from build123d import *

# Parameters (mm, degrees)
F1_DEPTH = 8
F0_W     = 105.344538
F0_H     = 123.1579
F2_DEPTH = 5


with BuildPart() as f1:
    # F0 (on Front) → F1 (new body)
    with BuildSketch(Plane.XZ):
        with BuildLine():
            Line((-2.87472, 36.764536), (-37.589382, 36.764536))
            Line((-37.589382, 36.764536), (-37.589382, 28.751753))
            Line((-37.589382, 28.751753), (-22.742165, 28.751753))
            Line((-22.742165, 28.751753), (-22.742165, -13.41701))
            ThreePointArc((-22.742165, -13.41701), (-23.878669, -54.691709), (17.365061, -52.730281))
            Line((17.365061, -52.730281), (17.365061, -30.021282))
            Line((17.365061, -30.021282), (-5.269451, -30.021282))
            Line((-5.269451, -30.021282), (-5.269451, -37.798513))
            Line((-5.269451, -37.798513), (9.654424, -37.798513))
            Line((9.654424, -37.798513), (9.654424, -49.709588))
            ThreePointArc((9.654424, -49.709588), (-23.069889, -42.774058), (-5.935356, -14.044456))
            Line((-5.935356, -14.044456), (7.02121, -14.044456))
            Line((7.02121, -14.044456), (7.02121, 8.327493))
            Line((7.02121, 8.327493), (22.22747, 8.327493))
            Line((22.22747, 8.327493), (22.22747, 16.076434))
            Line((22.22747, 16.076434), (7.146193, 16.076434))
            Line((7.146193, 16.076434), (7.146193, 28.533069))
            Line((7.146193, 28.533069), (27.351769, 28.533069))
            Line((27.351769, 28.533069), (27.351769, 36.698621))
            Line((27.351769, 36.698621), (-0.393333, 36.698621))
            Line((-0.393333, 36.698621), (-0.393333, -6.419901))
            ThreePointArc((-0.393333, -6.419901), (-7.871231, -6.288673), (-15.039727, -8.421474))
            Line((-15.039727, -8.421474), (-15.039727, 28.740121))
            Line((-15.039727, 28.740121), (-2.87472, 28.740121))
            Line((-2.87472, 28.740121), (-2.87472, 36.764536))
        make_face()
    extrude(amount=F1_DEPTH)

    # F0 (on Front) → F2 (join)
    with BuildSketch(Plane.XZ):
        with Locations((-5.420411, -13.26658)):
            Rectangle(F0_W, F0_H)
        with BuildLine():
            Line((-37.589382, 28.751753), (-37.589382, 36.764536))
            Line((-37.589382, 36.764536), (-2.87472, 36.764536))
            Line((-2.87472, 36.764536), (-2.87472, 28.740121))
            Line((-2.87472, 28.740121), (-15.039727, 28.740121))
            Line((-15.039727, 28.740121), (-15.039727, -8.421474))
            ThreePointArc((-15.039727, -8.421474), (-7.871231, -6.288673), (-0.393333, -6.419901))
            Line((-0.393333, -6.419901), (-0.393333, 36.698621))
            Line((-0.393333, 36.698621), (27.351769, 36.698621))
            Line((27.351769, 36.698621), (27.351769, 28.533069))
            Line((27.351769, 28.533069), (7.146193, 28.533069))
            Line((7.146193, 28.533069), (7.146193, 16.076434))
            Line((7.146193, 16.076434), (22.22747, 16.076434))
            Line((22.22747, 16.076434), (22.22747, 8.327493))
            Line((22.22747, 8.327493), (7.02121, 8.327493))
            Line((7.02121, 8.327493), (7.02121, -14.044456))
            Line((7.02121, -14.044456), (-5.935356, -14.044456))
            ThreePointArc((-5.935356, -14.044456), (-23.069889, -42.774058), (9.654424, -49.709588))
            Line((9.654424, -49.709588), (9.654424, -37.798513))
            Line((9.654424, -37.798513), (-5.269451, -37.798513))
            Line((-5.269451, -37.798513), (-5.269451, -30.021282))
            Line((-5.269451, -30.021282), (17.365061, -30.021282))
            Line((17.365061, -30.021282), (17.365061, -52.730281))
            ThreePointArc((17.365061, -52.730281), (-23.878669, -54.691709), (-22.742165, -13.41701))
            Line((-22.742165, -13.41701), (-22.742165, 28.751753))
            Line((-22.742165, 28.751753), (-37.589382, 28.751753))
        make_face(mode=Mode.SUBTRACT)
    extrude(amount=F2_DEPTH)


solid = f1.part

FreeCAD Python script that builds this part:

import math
import FreeCAD as App
import Part
import Sketcher
Q = App.Units.Quantity

doc = App.newDocument("Part")
body = doc.addObject("PartDesign::Body", "Body")

sketch1 = doc.addObject("Sketcher::SketchObject", "Sketch")
body.addObject(sketch1)
sketch1.AttachmentSupport = (doc.XZ_Plane, [""])
sketch1.MapMode = "FlatFace"
sketch1.addGeometry([
    Part.LineSegment(App.Vector(-3, 37, 0), App.Vector(-38, 37, 0)),
    Part.LineSegment(App.Vector(-38, 37, 0), App.Vector(-38, 29, 0)),
    Part.LineSegment(App.Vector(-38, 29, 0), App.Vector(-23, 29, 0)),
    Part.LineSegment(App.Vector(-23, 29, 0), App.Vector(-23, -13, 0)),
    Part.ArcOfCircle(Part.Circle(App.Vector(-4, -35, 0), App.Vector(0, 0, 1), 28), math.radians(131), math.radians(320)),
    Part.LineSegment(App.Vector(17, -53, 0), App.Vector(17, -30, 0)),
    Part.LineSegment(App.Vector(17, -30, 0), App.Vector(-5, -30, 0)),
    Part.LineSegment(App.Vector(-5, -30, 0), App.Vector(-5, -38, 0)),
    Part.LineSegment(App.Vector(-5, -38, 0), App.Vector(10, -38, 0)),
    Part.LineSegment(App.Vector(10, -38, 0), App.Vector(10, -50, 0)),
    Part.ArcOfCircle(Part.Circle(App.Vector(-4, -35, 0), App.Vector(0, 0, 1), 21), math.radians(95), math.radians(312)),
    Part.LineSegment(App.Vector(-6, -14, 0), App.Vector(7, -14, 0)),
    Part.LineSegment(App.Vector(7, -14, 0), App.Vector(7, 8, 0)),
    Part.LineSegment(App.Vector(7, 8, 0), App.Vector(22, 8, 0)),
    Part.LineSegment(App.Vector(22, 8, 0), App.Vector(22, 16, 0)),
    Part.LineSegment(App.Vector(22, 16, 0), App.Vector(7, 16, 0)),
    Part.LineSegment(App.Vector(7, 16, 0), App.Vector(7, 29, 0)),
    Part.LineSegment(App.Vector(7, 29, 0), App.Vector(27, 29, 0)),
    Part.LineSegment(App.Vector(27, 29, 0), App.Vector(27, 37, 0)),
    Part.LineSegment(App.Vector(27, 37, 0), App.Vector(0, 37, 0)),
    Part.LineSegment(App.Vector(0, 37, 0), App.Vector(0, -6, 0)),
    Part.ArcOfCircle(Part.Circle(App.Vector(-5, -31, 0), App.Vector(0, 0, 1), 24), math.radians(80), math.radians(115)),
    Part.LineSegment(App.Vector(-15, -8, 0), App.Vector(-15, 29, 0)),
    Part.LineSegment(App.Vector(-15, 29, 0), App.Vector(-3, 29, 0)),
    Part.LineSegment(App.Vector(-3, 29, 0), App.Vector(-3, 37, 0)),
], False)
sketch1.addConstraint([
    Sketcher.Constraint("Coincident", 0, 2, 1, 1),
    Sketcher.Constraint("Coincident", 1, 2, 2, 1),
    Sketcher.Constraint("Coincident", 2, 2, 3, 1),
    Sketcher.Constraint("Coincident", 3, 2, 4, 1),
    Sketcher.Constraint("Coincident", 4, 2, 5, 1),
    Sketcher.Constraint("Coincident", 5, 2, 6, 1),
    Sketcher.Constraint("Coincident", 6, 2, 7, 1),
    Sketcher.Constraint("Coincident", 7, 2, 8, 1),
    Sketcher.Constraint("Coincident", 8, 2, 9, 1),
    Sketcher.Constraint("Coincident", 9, 2, 10, 2),
    Sketcher.Constraint("Coincident", 10, 1, 11, 1),
    Sketcher.Constraint("Coincident", 11, 2, 12, 1),
    Sketcher.Constraint("Coincident", 12, 2, 13, 1),
    Sketcher.Constraint("Coincident", 13, 2, 14, 1),
    Sketcher.Constraint("Coincident", 14, 2, 15, 1),
    Sketcher.Constraint("Coincident", 15, 2, 16, 1),
    Sketcher.Constraint("Coincident", 16, 2, 17, 1),
    Sketcher.Constraint("Coincident", 17, 2, 18, 1),
    Sketcher.Constraint("Coincident", 18, 2, 19, 1),
    Sketcher.Constraint("Coincident", 19, 2, 20, 1),
    Sketcher.Constraint("Coincident", 20, 2, 21, 1),
    Sketcher.Constraint("Coincident", 21, 2, 22, 1),
    Sketcher.Constraint("Coincident", 22, 2, 23, 1),
    Sketcher.Constraint("Coincident", 23, 2, 24, 1),
    Sketcher.Constraint("Coincident", 24, 2, 0, 1),
    Sketcher.Constraint("Horizontal", 0),
    Sketcher.Constraint("Vertical", 1),
    Sketcher.Constraint("Horizontal", 2),
    Sketcher.Constraint("Vertical", 3),
    Sketcher.Constraint("Vertical", 5),
    Sketcher.Constraint("Horizontal", 6),
    Sketcher.Constraint("Vertical", 7),
    Sketcher.Constraint("Horizontal", 8),
    Sketcher.Constraint("Vertical", 9),
    Sketcher.Constraint("Horizontal", 11),
    Sketcher.Constraint("Vertical", 12),
    Sketcher.Constraint("Horizontal", 13),
    Sketcher.Constraint("Vertical", 14),
    Sketcher.Constraint("Horizontal", 15),
    Sketcher.Constraint("Vertical", 16),
    Sketcher.Constraint("Horizontal", 17),
    Sketcher.Constraint("Vertical", 18),
    Sketcher.Constraint("Horizontal", 19),
    Sketcher.Constraint("Vertical", 20),
    Sketcher.Constraint("Vertical", 22),
    Sketcher.Constraint("Horizontal", 23),
    Sketcher.Constraint("Vertical", 24),
    Sketcher.Constraint("DistanceY", 5, 1, 5, 2, Q("22.708999 mm")),
    Sketcher.Constraint("Radius", 21, Q("24.478949 mm")),
    Sketcher.Constraint("DistanceX", 19, 2, 19, 1, Q("27.745102 mm")),
    Sketcher.Constraint("Radius", 4, Q("28.160056 mm")),
    Sketcher.Constraint("Radius", 10, Q("20.564225 mm")),
    Sketcher.Constraint("DistanceX", 2, 2, 10, 3, Q("18.515001 mm")),
    Sketcher.Constraint("DistanceX", 13, 1, 13, 2, Q("15.20626 mm")),
    Sketcher.Constraint("DistanceY", 7, 2, 7, 1, Q("7.777231 mm")),
    Sketcher.Constraint("DistanceY", 12, 1, 12, 2, Q("22.371949 mm")),
    Sketcher.Constraint("DistanceY", 14, 1, 14, 2, Q("7.748941 mm")),
    Sketcher.Constraint("DistanceY", 20, 2, -1, 1, Q("6.419901 mm")),
    Sketcher.Constraint("DistanceY", 10, 3, 3, 2, Q("21.120602 mm")),
    Sketcher.Constraint("DistanceX", 6, 2, 21, 3, Q("0.712701 mm")),
    Sketcher.Constraint("DistanceY", 7, 2, 10, 3, Q("3.260901 mm")),
    Sketcher.Constraint("DistanceY", 9, 2, 4, 3, Q("15.1281 mm")),
    Sketcher.Constraint("DistanceX", 14, 2, 17, 2, Q("5.124299 mm")),
    Sketcher.Constraint("DistanceY", 22, 2, 19, 2, Q("7.9585 mm")),
    Sketcher.Constraint("DistanceX", 0, 2, 0, 1, Q("34.714662 mm")),
    Sketcher.Constraint("DistanceX", 2, 1, 2, 2, Q("14.847217 mm")),
    Sketcher.Constraint("DistanceX", 6, 2, 6, 1, Q("22.634512 mm")),
    Sketcher.Constraint("DistanceX", 8, 1, 8, 2, Q("14.923875 mm")),
    Sketcher.Constraint("DistanceX", 11, 1, 11, 2, Q("12.956566 mm")),
    Sketcher.Constraint("DistanceX", 15, 2, 15, 1, Q("15.081277 mm")),
    Sketcher.Constraint("DistanceX", 23, 1, 23, 2, Q("12.165007 mm")),
    Sketcher.Constraint("DistanceY", 1, 2, 1, 1, Q("8.012783 mm")),
    Sketcher.Constraint("DistanceY", 3, 2, 3, 1, Q("42.168763 mm")),
    Sketcher.Constraint("DistanceY", 16, 1, 16, 2, Q("12.456635 mm")),
    Sketcher.Constraint("DistanceY", 18, 1, 18, 2, Q("8.165552 mm")),
    Sketcher.Constraint("DistanceY", 20, 2, 20, 1, Q("43.118522 mm")),
    Sketcher.Constraint("DistanceY", 22, 1, 22, 2, Q("37.161595 mm")),
    Sketcher.Constraint("DistanceX", 21, 3, -1, 1, Q("4.55675 mm")),
])
pad1 = doc.addObject("PartDesign::Pad", "Pad")
body.addObject(pad1)
pad1.Profile = sketch1
pad1.Length = 8

sketch2 = doc.addObject("Sketcher::SketchObject", "Sketch001")
body.addObject(sketch2)
sketch2.AttachmentSupport = (doc.XZ_Plane, [""])
sketch2.MapMode = "FlatFace"
sketch2.addGeometry([
    Part.LineSegment(App.Vector(-58, 48, 0), App.Vector(-58, -75, 0)),
    Part.LineSegment(App.Vector(-58, -75, 0), App.Vector(47, -75, 0)),
    Part.LineSegment(App.Vector(47, -75, 0), App.Vector(47, 48, 0)),
    Part.LineSegment(App.Vector(47, 48, 0), App.Vector(-58, 48, 0)),
    Part.LineSegment(App.Vector(-23, 29, 0), App.Vector(-38, 29, 0)),
    Part.LineSegment(App.Vector(-38, 29, 0), App.Vector(-38, 37, 0)),
    Part.LineSegment(App.Vector(-38, 37, 0), App.Vector(-3, 37, 0)),
    Part.LineSegment(App.Vector(-3, 37, 0), App.Vector(-3, 29, 0)),
    Part.LineSegment(App.Vector(-3, 29, 0), App.Vector(-15, 29, 0)),
    Part.LineSegment(App.Vector(-15, 29, 0), App.Vector(-15, -8, 0)),
    Part.ArcOfCircle(Part.Circle(App.Vector(-5, -31, 0), App.Vector(0, 0, 1), 24), math.radians(80), math.radians(115)),
    Part.LineSegment(App.Vector(0, -6, 0), App.Vector(0, 37, 0)),
    Part.LineSegment(App.Vector(0, 37, 0), App.Vector(27, 37, 0)),
    Part.LineSegment(App.Vector(27, 37, 0), App.Vector(27, 29, 0)),
    Part.LineSegment(App.Vector(27, 29, 0), App.Vector(7, 29, 0)),
    Part.LineSegment(App.Vector(7, 29, 0), App.Vector(7, 16, 0)),
    Part.LineSegment(App.Vector(7, 16, 0), App.Vector(22, 16, 0)),
    Part.LineSegment(App.Vector(22, 16, 0), App.Vector(22, 8, 0)),
    Part.LineSegment(App.Vector(22, 8, 0), App.Vector(7, 8, 0)),
    Part.LineSegment(App.Vector(7, 8, 0), App.Vector(7, -14, 0)),
    Part.LineSegment(App.Vector(7, -14, 0), App.Vector(-6, -14, 0)),
    Part.ArcOfCircle(Part.Circle(App.Vector(-4, -35, 0), App.Vector(0, 0, 1), 21), math.radians(95), math.radians(312)),
    Part.LineSegment(App.Vector(10, -50, 0), App.Vector(10, -38, 0)),
    Part.LineSegment(App.Vector(10, -38, 0), App.Vector(-5, -38, 0)),
    Part.LineSegment(App.Vector(-5, -38, 0), App.Vector(-5, -30, 0)),
    Part.LineSegment(App.Vector(-5, -30, 0), App.Vector(17, -30, 0)),
    Part.LineSegment(App.Vector(17, -30, 0), App.Vector(17, -53, 0)),
    Part.ArcOfCircle(Part.Circle(App.Vector(-4, -35, 0), App.Vector(0, 0, 1), 28), math.radians(131), math.radians(320)),
    Part.LineSegment(App.Vector(-23, -13, 0), App.Vector(-23, 29, 0)),
], False)
sketch2.addConstraint([
    Sketcher.Constraint("Coincident", 0, 2, 1, 1),
    Sketcher.Constraint("Coincident", 1, 2, 2, 1),
    Sketcher.Constraint("Coincident", 2, 2, 3, 1),
    Sketcher.Constraint("Coincident", 3, 2, 0, 1),
    Sketcher.Constraint("Coincident", 4, 2, 5, 1),
    Sketcher.Constraint("Coincident", 5, 2, 6, 1),
    Sketcher.Constraint("Coincident", 6, 2, 7, 1),
    Sketcher.Constraint("Coincident", 7, 2, 8, 1),
    Sketcher.Constraint("Coincident", 8, 2, 9, 1),
    Sketcher.Constraint("Coincident", 9, 2, 10, 2),
    Sketcher.Constraint("Coincident", 10, 1, 11, 1),
    Sketcher.Constraint("Coincident", 11, 2, 12, 1),
    Sketcher.Constraint("Coincident", 12, 2, 13, 1),
    Sketcher.Constraint("Coincident", 13, 2, 14, 1),
    Sketcher.Constraint("Coincident", 14, 2, 15, 1),
    Sketcher.Constraint("Coincident", 15, 2, 16, 1),
    Sketcher.Constraint("Coincident", 16, 2, 17, 1),
    Sketcher.Constraint("Coincident", 17, 2, 18, 1),
    Sketcher.Constraint("Coincident", 18, 2, 19, 1),
    Sketcher.Constraint("Coincident", 19, 2, 20, 1),
    Sketcher.Constraint("Coincident", 20, 2, 21, 1),
    Sketcher.Constraint("Coincident", 21, 2, 22, 1),
    Sketcher.Constraint("Coincident", 22, 2, 23, 1),
    Sketcher.Constraint("Coincident", 23, 2, 24, 1),
    Sketcher.Constraint("Coincident", 24, 2, 25, 1),
    Sketcher.Constraint("Coincident", 25, 2, 26, 1),
    Sketcher.Constraint("Coincident", 26, 2, 27, 2),
    Sketcher.Constraint("Coincident", 27, 1, 28, 1),
    Sketcher.Constraint("Coincident", 28, 2, 4, 1),
    Sketcher.Constraint("Vertical", 0),
    Sketcher.Constraint("Horizontal", 1),
    Sketcher.Constraint("Vertical", 2),
    Sketcher.Constraint("Horizontal", 3),
    Sketcher.Constraint("Horizontal", 4),
    Sketcher.Constraint("Vertical", 5),
    Sketcher.Constraint("Horizontal", 6),
    Sketcher.Constraint("Vertical", 7),
    Sketcher.Constraint("Horizontal", 8),
    Sketcher.Constraint("Vertical", 9),
    Sketcher.Constraint("Vertical", 11),
    Sketcher.Constraint("Horizontal", 12),
    Sketcher.Constraint("Vertical", 13),
    Sketcher.Constraint("Horizontal", 14),
    Sketcher.Constraint("Vertical", 15),
    Sketcher.Constraint("Horizontal", 16),
    Sketcher.Constraint("Vertical", 17),
    Sketcher.Constraint("Horizontal", 18),
    Sketcher.Constraint("Vertical", 19),
    Sketcher.Constraint("Horizontal", 20),
    Sketcher.Constraint("Vertical", 22),
    Sketcher.Constraint("Horizontal", 23),
    Sketcher.Constraint("Vertical", 24),
    Sketcher.Constraint("Horizontal", 25),
    Sketcher.Constraint("Vertical", 26),
    Sketcher.Constraint("Vertical", 28),
    Sketcher.Constraint("DistanceY", 26, 2, 26, 1, Q("22.708999 mm")),
    Sketcher.Constraint("Radius", 10, Q("24.478949 mm")),
    Sketcher.Constraint("DistanceX", 12, 1, 12, 2, Q("27.745102 mm")),
    Sketcher.Constraint("DistanceY", 0, 2, 0, 1, Q("123.1579 mm")),
    Sketcher.Constraint("Radius", 21, Q("20.564225 mm")),
    Sketcher.Constraint("Radius", 27, Q("28.160056 mm")),
    Sketcher.Constraint("DistanceX", 1, 1, 1, 2, Q("105.344538 mm")),
    Sketcher.Constraint("DistanceX", 18, 2, 18, 1, Q("15.20626 mm")),
    Sketcher.Constraint("DistanceY", 17, 2, 17, 1, Q("7.748941 mm")),
    Sketcher.Constraint("DistanceY", 19, 2, 19, 1, Q("22.371949 mm")),
    Sketcher.Constraint("DistanceY", 24, 1, 24, 2, Q("7.777231 mm")),
    Sketcher.Constraint("DistanceY", 10, 1, -1, 1, Q("6.419901 mm")),
    Sketcher.Constraint("DistanceX", 3, 2, 4, 2, Q("20.503298 mm")),
    Sketcher.Constraint("DistanceY", 7, 2, 11, 2, Q("7.9585 mm")),
    Sketcher.Constraint("DistanceY", 13, 2, 2, 2, Q("19.779301 mm")),
    Sketcher.Constraint("DistanceX", 16, 2, 13, 2, Q("5.124299 mm")),
    Sketcher.Constraint("DistanceY", 21, 2, 27, 3, Q("15.1281 mm")),
    Sketcher.Constraint("DistanceY", 22, 2, 21, 3, Q("3.260901 mm")),
    Sketcher.Constraint("DistanceX", 23, 2, 10, 3, Q("0.712701 mm")),
    Sketcher.Constraint("DistanceX", 4, 2, 4, 1, Q("14.847217 mm")),
    Sketcher.Constraint("DistanceX", 6, 1, 6, 2, Q("34.714662 mm")),
    Sketcher.Constraint("DistanceX", 8, 2, 8, 1, Q("12.165007 mm")),
    Sketcher.Constraint("DistanceX", 14, 2, 14, 1, Q("20.205576 mm")),
    Sketcher.Constraint("DistanceX", 20, 2, 20, 1, Q("12.956566 mm")),
    Sketcher.Constraint("DistanceX", 23, 2, 23, 1, Q("14.923875 mm")),
    Sketcher.Constraint("DistanceX", 25, 1, 25, 2, Q("22.634512 mm")),
    Sketcher.Constraint("DistanceY", 5, 1, 5, 2, Q("8.012783 mm")),
    Sketcher.Constraint("DistanceY", 7, 2, 7, 1, Q("8.024415 mm")),
    Sketcher.Constraint("DistanceY", 9, 2, 9, 1, Q("37.161595 mm")),
    Sketcher.Constraint("DistanceY", 11, 1, 11, 2, Q("43.118522 mm")),
    Sketcher.Constraint("DistanceY", 13, 2, 13, 1, Q("8.165552 mm")),
    Sketcher.Constraint("DistanceY", 15, 2, 15, 1, Q("12.456635 mm")),
    Sketcher.Constraint("DistanceY", 22, 1, 22, 2, Q("11.911075 mm")),
    Sketcher.Constraint("DistanceY", 28, 1, 28, 2, Q("42.168763 mm")),
    Sketcher.Constraint("DistanceX", 10, 3, -1, 1, Q("4.55675 mm")),
])
pad2 = doc.addObject("PartDesign::Pad", "Pad001")
body.addObject(pad2)
pad2.Profile = sketch2
pad2.Length = 5

doc.recompute()
